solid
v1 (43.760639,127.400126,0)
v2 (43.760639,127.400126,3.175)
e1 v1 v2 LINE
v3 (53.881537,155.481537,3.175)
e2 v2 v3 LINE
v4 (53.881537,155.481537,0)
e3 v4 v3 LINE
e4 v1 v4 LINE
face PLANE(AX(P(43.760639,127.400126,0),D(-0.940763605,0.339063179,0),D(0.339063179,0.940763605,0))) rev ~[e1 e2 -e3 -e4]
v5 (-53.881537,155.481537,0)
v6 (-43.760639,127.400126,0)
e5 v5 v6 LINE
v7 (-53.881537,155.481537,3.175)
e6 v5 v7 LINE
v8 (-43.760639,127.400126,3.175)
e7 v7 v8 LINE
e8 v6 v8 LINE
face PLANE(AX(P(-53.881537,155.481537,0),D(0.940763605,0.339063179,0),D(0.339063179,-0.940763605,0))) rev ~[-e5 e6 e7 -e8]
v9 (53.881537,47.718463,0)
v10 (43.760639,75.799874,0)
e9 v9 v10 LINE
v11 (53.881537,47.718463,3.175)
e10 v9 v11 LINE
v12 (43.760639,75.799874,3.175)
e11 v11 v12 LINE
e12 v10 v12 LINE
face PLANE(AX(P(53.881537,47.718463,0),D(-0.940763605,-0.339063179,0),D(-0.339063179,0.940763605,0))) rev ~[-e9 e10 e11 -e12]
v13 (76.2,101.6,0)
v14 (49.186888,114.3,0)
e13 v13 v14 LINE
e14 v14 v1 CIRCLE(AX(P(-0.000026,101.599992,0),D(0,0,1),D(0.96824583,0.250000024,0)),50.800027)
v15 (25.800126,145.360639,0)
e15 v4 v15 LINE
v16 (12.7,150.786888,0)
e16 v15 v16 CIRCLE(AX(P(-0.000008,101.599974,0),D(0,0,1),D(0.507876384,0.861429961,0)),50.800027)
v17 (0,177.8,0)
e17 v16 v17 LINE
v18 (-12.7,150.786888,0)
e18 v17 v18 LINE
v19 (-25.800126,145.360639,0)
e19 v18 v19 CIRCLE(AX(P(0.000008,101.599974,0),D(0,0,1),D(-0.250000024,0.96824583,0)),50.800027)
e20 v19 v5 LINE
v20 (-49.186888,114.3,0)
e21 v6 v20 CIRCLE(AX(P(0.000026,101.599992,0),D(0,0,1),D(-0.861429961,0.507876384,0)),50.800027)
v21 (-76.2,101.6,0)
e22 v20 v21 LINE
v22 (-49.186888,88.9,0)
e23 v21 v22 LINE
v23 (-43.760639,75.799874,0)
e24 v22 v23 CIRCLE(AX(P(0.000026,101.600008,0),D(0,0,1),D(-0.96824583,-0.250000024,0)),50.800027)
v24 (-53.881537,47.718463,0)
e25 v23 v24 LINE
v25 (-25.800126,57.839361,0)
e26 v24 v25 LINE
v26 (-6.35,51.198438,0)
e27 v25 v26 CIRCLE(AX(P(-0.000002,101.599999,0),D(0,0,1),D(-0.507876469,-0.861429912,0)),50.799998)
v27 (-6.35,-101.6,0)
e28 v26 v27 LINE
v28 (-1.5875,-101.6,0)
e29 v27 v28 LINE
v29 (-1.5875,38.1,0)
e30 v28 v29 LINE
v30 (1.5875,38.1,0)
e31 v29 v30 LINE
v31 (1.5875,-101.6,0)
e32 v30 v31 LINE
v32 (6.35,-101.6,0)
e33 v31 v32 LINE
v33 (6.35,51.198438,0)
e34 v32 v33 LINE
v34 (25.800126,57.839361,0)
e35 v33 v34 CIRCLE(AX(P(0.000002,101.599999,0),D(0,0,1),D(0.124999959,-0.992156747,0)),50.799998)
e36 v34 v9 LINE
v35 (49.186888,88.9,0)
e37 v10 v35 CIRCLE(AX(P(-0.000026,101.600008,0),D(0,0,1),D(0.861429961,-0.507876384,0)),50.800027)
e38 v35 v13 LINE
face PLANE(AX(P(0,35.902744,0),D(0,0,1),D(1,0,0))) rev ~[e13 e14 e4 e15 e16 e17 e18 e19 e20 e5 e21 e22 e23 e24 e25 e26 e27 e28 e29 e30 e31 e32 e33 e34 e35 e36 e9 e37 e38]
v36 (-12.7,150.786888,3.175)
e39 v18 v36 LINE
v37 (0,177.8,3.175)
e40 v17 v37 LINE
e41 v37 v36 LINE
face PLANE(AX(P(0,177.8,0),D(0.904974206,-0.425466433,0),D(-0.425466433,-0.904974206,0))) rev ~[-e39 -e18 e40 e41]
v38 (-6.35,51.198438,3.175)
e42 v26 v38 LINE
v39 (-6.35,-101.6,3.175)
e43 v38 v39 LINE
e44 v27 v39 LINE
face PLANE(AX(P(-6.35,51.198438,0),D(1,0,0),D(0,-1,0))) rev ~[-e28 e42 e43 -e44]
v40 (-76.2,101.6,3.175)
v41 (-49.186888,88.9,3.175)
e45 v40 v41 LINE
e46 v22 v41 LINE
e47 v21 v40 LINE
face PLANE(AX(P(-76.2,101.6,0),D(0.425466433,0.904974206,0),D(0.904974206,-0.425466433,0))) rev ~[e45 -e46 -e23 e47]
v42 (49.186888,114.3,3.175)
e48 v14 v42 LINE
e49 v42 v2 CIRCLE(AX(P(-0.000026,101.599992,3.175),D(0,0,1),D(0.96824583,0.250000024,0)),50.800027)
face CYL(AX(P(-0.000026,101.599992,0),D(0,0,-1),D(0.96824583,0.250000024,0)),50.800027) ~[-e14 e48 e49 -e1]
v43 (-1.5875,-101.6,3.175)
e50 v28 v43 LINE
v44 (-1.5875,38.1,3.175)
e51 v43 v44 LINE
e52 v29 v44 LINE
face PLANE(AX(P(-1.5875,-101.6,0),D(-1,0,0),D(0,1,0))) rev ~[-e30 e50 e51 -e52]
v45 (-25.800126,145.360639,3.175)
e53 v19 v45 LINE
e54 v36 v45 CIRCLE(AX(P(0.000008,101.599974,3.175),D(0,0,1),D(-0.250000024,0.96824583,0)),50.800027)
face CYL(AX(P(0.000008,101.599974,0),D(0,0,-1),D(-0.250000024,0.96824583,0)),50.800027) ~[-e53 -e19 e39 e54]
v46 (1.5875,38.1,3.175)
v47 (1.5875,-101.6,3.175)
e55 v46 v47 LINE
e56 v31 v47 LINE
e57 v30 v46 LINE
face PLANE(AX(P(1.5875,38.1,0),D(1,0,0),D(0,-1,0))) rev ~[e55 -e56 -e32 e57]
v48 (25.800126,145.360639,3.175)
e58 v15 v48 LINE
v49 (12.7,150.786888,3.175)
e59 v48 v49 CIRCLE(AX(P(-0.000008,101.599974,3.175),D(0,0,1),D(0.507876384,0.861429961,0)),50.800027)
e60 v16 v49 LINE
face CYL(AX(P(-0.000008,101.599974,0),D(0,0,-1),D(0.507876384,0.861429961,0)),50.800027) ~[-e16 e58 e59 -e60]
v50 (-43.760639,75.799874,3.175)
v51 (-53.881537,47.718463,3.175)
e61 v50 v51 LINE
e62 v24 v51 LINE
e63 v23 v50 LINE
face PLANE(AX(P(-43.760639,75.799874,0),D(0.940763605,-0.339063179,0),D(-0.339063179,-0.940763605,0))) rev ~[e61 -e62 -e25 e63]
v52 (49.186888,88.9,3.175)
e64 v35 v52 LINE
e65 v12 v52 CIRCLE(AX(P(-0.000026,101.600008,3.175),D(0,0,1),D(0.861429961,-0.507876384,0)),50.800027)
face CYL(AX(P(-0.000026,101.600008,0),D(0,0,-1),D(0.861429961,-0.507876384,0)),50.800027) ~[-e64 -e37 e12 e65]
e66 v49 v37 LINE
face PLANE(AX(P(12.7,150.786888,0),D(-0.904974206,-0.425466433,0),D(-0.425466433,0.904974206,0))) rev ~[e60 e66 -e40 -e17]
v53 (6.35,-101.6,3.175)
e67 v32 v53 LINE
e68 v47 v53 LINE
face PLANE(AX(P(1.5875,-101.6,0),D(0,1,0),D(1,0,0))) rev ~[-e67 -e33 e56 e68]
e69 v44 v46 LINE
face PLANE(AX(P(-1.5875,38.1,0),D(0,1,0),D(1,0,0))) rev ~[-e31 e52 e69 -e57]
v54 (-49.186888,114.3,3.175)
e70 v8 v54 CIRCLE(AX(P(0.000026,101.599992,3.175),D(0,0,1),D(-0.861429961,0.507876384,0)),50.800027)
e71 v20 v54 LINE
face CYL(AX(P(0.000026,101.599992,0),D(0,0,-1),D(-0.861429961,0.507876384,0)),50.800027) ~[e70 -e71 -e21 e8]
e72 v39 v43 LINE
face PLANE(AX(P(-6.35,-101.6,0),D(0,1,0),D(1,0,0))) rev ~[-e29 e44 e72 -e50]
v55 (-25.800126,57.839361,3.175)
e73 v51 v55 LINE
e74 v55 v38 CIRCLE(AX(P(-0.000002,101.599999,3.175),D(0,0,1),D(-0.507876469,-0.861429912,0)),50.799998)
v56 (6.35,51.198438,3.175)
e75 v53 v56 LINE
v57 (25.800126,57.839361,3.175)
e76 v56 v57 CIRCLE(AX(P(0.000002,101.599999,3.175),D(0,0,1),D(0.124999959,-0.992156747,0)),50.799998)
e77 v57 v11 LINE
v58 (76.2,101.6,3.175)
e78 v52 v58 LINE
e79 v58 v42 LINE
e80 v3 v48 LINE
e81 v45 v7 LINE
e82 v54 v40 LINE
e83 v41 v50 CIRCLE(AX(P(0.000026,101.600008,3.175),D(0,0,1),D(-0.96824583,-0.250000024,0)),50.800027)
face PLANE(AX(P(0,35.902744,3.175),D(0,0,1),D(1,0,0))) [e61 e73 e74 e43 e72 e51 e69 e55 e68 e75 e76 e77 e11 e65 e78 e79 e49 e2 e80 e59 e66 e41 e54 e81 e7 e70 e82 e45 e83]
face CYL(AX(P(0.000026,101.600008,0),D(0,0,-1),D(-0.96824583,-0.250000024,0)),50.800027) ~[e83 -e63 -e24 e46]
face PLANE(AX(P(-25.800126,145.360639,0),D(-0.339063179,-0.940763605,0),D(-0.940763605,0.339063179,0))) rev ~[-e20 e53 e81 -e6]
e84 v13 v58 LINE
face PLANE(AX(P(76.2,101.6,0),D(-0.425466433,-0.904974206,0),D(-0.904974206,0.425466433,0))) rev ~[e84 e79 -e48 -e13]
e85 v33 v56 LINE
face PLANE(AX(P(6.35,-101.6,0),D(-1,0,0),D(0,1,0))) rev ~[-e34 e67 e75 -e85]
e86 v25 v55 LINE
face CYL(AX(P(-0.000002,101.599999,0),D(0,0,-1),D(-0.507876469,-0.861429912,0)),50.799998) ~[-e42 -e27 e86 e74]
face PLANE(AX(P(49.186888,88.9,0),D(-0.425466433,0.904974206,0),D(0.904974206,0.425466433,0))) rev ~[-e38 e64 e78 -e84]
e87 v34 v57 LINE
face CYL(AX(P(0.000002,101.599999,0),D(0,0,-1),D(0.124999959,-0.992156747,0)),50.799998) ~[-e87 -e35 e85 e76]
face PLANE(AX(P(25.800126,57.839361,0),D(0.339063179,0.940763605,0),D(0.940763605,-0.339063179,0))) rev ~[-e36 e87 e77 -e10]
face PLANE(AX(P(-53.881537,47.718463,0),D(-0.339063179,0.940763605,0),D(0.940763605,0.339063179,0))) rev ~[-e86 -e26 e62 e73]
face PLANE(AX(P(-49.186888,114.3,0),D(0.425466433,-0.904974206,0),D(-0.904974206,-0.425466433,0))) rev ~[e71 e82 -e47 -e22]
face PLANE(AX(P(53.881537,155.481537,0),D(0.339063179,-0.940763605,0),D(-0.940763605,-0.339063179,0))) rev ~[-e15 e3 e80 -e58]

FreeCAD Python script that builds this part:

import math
import FreeCAD as App
import Part
import Sketcher
Q = App.Units.Quantity

doc = App.newDocument("Part")
body = doc.addObject("PartDesign::Body", "Body")

# Sketch on XY plane
sketch1 = body.newObject("Sketcher::SketchObject", "Sketch")
sketch1.AttachmentSupport = (doc.getObject("XY_Plane"), [""])
sketch1.MapMode = "FlatFace"
sketch1.addGeometry([
    Part.LineSegment(App.Vector(-6.35, 51.198438, 0), App.Vector(-6.35, -101.6, 0)),  # 0
    Part.LineSegment(App.Vector(-6.35, -101.6, 0), App.Vector(-1.5875, -101.6, 0)),  # 1
    Part.LineSegment(App.Vector(-1.5875, -101.6, 0), App.Vector(-1.5875, 38.1, 0)),  # 2
    Part.LineSegment(App.Vector(-1.5875, 38.1, 0), App.Vector(1.5875, 38.1, 0)),  # 3
    Part.LineSegment(App.Vector(1.5875, 38.1, 0), App.Vector(1.5875, -101.6, 0)),  # 4
    Part.LineSegment(App.Vector(1.5875, -101.6, 0), App.Vector(6.35, -101.6, 0)),  # 5
    Part.LineSegment(App.Vector(6.35, -101.6, 0), App.Vector(6.35, 51.198438, 0)),  # 6
    Part.ArcOfCircle(Part.Circle(App.Vector(0.000002, 101.599999, 0), App.Vector(0, 0, 1), 50.799998), math.radians(-82.819247), math.radians(-59.477514)),  # 7
    Part.LineSegment(App.Vector(25.800126, 57.839361, 0), App.Vector(53.881537, 47.718463, 0)),  # 8
    Part.LineSegment(App.Vector(53.881537, 47.718463, 0), App.Vector(43.760639, 75.799874, 0)),  # 9
    Part.ArcOfCircle(Part.Circle(App.Vector(-0.000026, 101.600008, 0), App.Vector(0, 0, 1), 50.800027), math.radians(-30.52248), math.radians(-14.477514)),  # 10
    Part.LineSegment(App.Vector(49.186888, 88.9, 0), App.Vector(76.2, 101.6, 0)),  # 11
    Part.LineSegment(App.Vector(76.2, 101.6, 0), App.Vector(49.186888, 114.3, 0)),  # 12
    Part.ArcOfCircle(Part.Circle(App.Vector(-0.000026, 101.599992, 0), App.Vector(0, 0, 1), 50.800027), math.radians(14.477514), math.radians(30.52248)),  # 13
    Part.LineSegment(App.Vector(43.760639, 127.400126, 0), App.Vector(53.881537, 155.481537, 0)),  # 14
    Part.LineSegment(App.Vector(53.881537, 155.481537, 0), App.Vector(25.800126, 145.360639, 0)),  # 15
    Part.ArcOfCircle(Part.Circle(App.Vector(-0.000008, 101.599974, 0), App.Vector(0, 0, 1), 50.800027), math.radians(59.47752), math.radians(75.522486)),  # 16
    Part.LineSegment(App.Vector(12.7, 150.786888, 0), App.Vector(0, 177.8, 0)),  # 17
    Part.LineSegment(App.Vector(0, 177.8, 0), App.Vector(-12.7, 150.786888, 0)),  # 18
    Part.ArcOfCircle(Part.Circle(App.Vector(0.000008, 101.599974, 0), App.Vector(0, 0, 1), 50.800027), math.radians(104.477514), math.radians(120.52248)),  # 19
    Part.LineSegment(App.Vector(-25.800126, 145.360639, 0), App.Vector(-53.881537, 155.481537, 0)),  # 20
    Part.LineSegment(App.Vector(-53.881537, 155.481537, 0), App.Vector(-43.760639, 127.400126, 0)),  # 21
    Part.ArcOfCircle(Part.Circle(App.Vector(0.000026, 101.599992, 0), App.Vector(0, 0, 1), 50.800027), math.radians(149.47752), math.radians(165.522486)),  # 22
    Part.LineSegment(App.Vector(-49.186888, 114.3, 0), App.Vector(-76.2, 101.6, 0)),  # 23
    Part.LineSegment(App.Vector(-76.2, 101.6, 0), App.Vector(-49.186888, 88.9, 0)),  # 24
    Part.ArcOfCircle(Part.Circle(App.Vector(0.000026, 101.600008, 0), App.Vector(0, 0, 1), 50.800027), math.radians(-165.522486), math.radians(-149.47752)),  # 25
    Part.LineSegment(App.Vector(-43.760639, 75.799874, 0), App.Vector(-53.881537, 47.718463, 0)),  # 26
    Part.LineSegment(App.Vector(-53.881537, 47.718463, 0), App.Vector(-25.800126, 57.839361, 0)),  # 27
    Part.ArcOfCircle(Part.Circle(App.Vector(-0.000002, 101.599999, 0), App.Vector(0, 0, 1), 50.799998), math.radians(-120.522486), math.radians(-97.180753)),  # 28
], False)
sketch1.addConstraint([
    Sketcher.Constraint("Coincident", 0, 2, 1, 1),
    Sketcher.Constraint("Coincident", 1, 2, 2, 1),
    Sketcher.Constraint("Coincident", 2, 2, 3, 1),
    Sketcher.Constraint("Coincident", 3, 2, 4, 1),
    Sketcher.Constraint("Coincident", 4, 2, 5, 1),
    Sketcher.Constraint("Coincident", 5, 2, 6, 1),
    Sketcher.Constraint("Coincident", 6, 2, 7, 1),
    Sketcher.Constraint("Coincident", 7, 2, 8, 1),
    Sketcher.Constraint("Coincident", 8, 2, 9, 1),
    Sketcher.Constraint("Coincident", 9, 2, 10, 1),
    Sketcher.Constraint("Coincident", 10, 2, 11, 1),
    Sketcher.Constraint("Coincident", 11, 2, 12, 1),
    Sketcher.Constraint("Coincident", 12, 2, 13, 1),
    Sketcher.Constraint("Coincident", 13, 2, 14, 1),
    Sketcher.Constraint("Coincident", 14, 2, 15, 1),
    Sketcher.Constraint("Coincident", 15, 2, 16, 1),
    Sketcher.Constraint("Coincident", 16, 2, 17, 1),
    Sketcher.Constraint("Coincident", 17, 2, 18, 1),
    Sketcher.Constraint("Coincident", 18, 2, 19, 1),
    Sketcher.Constraint("Coincident", 19, 2, 20, 1),
    Sketcher.Constraint("Coincident", 20, 2, 21, 1),
    Sketcher.Constraint("Coincident", 21, 2, 22, 1),
    Sketcher.Constraint("Coincident", 22, 2, 23, 1),
    Sketcher.Constraint("Coincident", 23, 2, 24, 1),
    Sketcher.Constraint("Coincident", 24, 2, 25, 1),
    Sketcher.Constraint("Coincident", 25, 2, 26, 1),
    Sketcher.Constraint("Coincident", 26, 2, 27, 1),
    Sketcher.Constraint("Coincident", 27, 2, 28, 1),
    Sketcher.Constraint("Coincident", 28, 2, 0, 1),
    Sketcher.Constraint("Vertical", 0),
    Sketcher.Constraint("Horizontal", 1),
    Sketcher.Constraint("Vertical", 2),
    Sketcher.Constraint("Horizontal", 3),
    Sketcher.Constraint("Vertical", 4),
    Sketcher.Constraint("Horizontal", 5),
    Sketcher.Constraint("Vertical", 6),
    Sketcher.Constraint("Coincident", 28, 3, 7, 3),
    Sketcher.Constraint("Equal", 10, 13),
    Sketcher.Constraint("Equal", 13, 16),
    Sketcher.Constraint("Equal", 16, 19),
    Sketcher.Constraint("Equal", 19, 22),
    Sketcher.Constraint("Equal", 22, 25),
    Sketcher.Constraint("Equal", 7, 28),
    Sketcher.Constraint("Symmetric", 16, 3, 19, 3, -2),
    Sketcher.Constraint("Symmetric", 13, 3, 22, 3, -2),
    Sketcher.Constraint("Symmetric", 10, 3, 25, 3, -2),
    Sketcher.Constraint("Symmetric", 1, 2, 4, 2, -2),
    Sketcher.Constraint("Symmetric", 14, 2, 20, 2, -2),
    Sketcher.Constraint("Symmetric", 11, 2, 23, 2, -2),
    Sketcher.Constraint("Symmetric", 8, 2, 26, 2, -2),
    Sketcher.Constraint("Symmetric", 7, 2, 27, 2, -2),
    Sketcher.Constraint("PointOnObject", 17, 2, -2),
    Sketcher.Constraint("Perpendicular", 8, 14),
    Sketcher.Constraint("Perpendicular", 9, 15),
    Sketcher.Constraint("Perpendicular", 11, 17),
    Sketcher.Constraint("Perpendicular", 12, 18),
    Sketcher.Constraint("Perpendicular", 14, 20),
    Sketcher.Constraint("Perpendicular", 15, 21),
    Sketcher.Constraint("Perpendicular", 17, 23),
    Sketcher.Constraint("Perpendicular", 18, 24),
    Sketcher.Constraint("Perpendicular", 20, 26),
    Sketcher.Constraint("Perpendicular", 21, 27),
    Sketcher.Constraint("Horizontal", 28, 3, 11, 2),
    Sketcher.Constraint("Horizontal", 16, 2, 18, 2),
    Sketcher.Constraint("Horizontal", 6, 2, 28, 2),
    Sketcher.Constraint("Vertical", 10, 3, 13, 3),
    Sketcher.Constraint("Vertical", 10, 2, 12, 2),
    Sketcher.Constraint("Vertical", 9, 2, 13, 2),
    Sketcher.Constraint("Vertical", 8, 2, 14, 2),
    Sketcher.Constraint("Vertical", 7, 2, 15, 2),
    Sketcher.Constraint("Equal", 8, 9),
    Sketcher.Constraint("Equal", 9, 11),
    Sketcher.Constraint("Equal", 15, 17),
    Sketcher.Constraint("Radius", 7, Q("1.9999999 in")),
    Sketcher.Constraint("DistanceY", 2, 1, 2, 2, Q("5.5 in")),
    Sketcher.Constraint("DistanceY", -1, 1, 7, 3, Q("4 in")),
    Sketcher.Constraint("DistanceY", 0, 2, -1, 1, Q("4 in")),
    Sketcher.Constraint("DistanceX", -1, 1, 11, 2, Q("3 in")),
    Sketcher.Constraint("DistanceY", -1, 1, 17, 2, Q("7 in")),
    Sketcher.Constraint("DistanceY", 10, 2, 12, 2, Q("1 in")),
    Sketcher.Constraint("DistanceX", 0, 2, 5, 2, Q("0.5 in")),
    Sketcher.Constraint("DistanceX", 1, 1, 1, 2, Q("0.1875 in")),
    Sketcher.Constraint("Radius", 10, 50.800027),
    Sketcher.Constraint("DistanceX", 22, 3, 7, 2, 25.8001),
    Sketcher.Constraint("DistanceX", 9, 2, 8, 2, 10.120898),
    Sketcher.Constraint("DistanceY", 9, 2, 19, 3, 25.8001),
])
pad1 = body.newObject("PartDesign::Pad", "Pad")
pad1.Profile = sketch1
pad1.Length = Q("0.125 in")

doc.recompute()
